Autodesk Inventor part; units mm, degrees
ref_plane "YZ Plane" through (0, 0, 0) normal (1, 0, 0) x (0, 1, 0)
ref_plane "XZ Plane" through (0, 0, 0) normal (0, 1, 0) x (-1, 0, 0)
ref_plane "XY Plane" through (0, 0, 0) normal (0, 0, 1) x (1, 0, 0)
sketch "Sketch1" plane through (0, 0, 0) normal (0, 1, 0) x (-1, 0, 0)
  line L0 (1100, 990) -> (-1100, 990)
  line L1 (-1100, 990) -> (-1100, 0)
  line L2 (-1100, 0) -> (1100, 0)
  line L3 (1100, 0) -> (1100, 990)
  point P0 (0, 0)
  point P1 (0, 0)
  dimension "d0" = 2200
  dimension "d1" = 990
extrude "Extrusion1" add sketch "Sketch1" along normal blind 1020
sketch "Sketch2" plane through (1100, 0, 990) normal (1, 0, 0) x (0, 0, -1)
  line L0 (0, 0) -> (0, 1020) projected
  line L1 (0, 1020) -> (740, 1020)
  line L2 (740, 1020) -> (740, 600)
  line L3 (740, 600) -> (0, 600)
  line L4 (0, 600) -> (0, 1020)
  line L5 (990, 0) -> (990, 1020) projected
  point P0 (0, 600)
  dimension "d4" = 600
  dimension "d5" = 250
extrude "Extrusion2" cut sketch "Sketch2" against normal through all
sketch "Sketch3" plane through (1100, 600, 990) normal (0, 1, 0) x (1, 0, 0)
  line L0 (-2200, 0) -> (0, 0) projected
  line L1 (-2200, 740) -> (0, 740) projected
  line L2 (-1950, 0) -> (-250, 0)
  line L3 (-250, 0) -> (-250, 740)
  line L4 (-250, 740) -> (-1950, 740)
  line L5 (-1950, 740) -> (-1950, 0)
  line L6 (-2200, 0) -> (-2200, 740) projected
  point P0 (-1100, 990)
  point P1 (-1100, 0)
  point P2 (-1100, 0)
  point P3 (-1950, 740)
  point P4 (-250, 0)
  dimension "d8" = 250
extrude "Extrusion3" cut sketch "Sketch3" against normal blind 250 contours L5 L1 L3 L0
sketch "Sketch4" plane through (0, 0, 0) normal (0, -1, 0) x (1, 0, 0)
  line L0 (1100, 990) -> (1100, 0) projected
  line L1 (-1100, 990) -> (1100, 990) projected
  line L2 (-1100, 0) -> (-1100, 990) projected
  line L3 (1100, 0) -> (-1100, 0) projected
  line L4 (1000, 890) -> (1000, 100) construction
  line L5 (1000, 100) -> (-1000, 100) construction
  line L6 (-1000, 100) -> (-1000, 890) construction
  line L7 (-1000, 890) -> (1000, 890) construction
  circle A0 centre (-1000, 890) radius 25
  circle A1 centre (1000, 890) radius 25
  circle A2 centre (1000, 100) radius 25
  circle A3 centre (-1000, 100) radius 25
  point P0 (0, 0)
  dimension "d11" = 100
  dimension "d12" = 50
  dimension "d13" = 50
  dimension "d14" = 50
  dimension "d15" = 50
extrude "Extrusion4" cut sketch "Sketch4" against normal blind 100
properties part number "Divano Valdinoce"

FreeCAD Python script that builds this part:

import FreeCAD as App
import Part
import Sketcher

V = App.Vector

doc = App.newDocument("Part")
body = doc.addObject("PartDesign::Body", "Body")

# Sketch on XZ plane
sketch1 = body.newObject("Sketcher::SketchObject", "Sketch")
sketch1.AttachmentSupport = (doc.getObject("XZ_Plane"), [""])
sketch1.MapMode = "FlatFace"
sketch1.addGeometry(Part.LineSegment(V(-1100, 0, 0), V(-1100, 990, 0)), False)
sketch1.addGeometry(Part.LineSegment(V(-1100, 990, 0), V(1100, 990, 0)), False)
sketch1.addGeometry(Part.LineSegment(V(1100, 990, 0), V(1100, 0, 0)), False)
sketch1.addGeometry(Part.LineSegment(V(1100, 0, 0), V(-1100, 0, 0)), False)
sketch1.addConstraint(Sketcher.Constraint("Coincident", 0, 2, 1, 1))
sketch1.addConstraint(Sketcher.Constraint("Coincident", 1, 2, 2, 1))
sketch1.addConstraint(Sketcher.Constraint("Coincident", 2, 2, 3, 1))
sketch1.addConstraint(Sketcher.Constraint("Coincident", 3, 2, 0, 1))
sketch1.addConstraint(Sketcher.Constraint("Vertical", 0))
sketch1.addConstraint(Sketcher.Constraint("Horizontal", 1))
sketch1.addConstraint(Sketcher.Constraint("Vertical", 2))
sketch1.addConstraint(Sketcher.Constraint("Horizontal", 3))
sketch1.addConstraint(Sketcher.Constraint("Symmetric", 2, 2, 3, 2, -1, 1))
sketch1.addConstraint(Sketcher.Constraint("DistanceX", 1, 1, 1, 2, 2200.0))
sketch1.addConstraint(Sketcher.Constraint("DistanceY", 0, 1, 0, 2, 990.0))
pad1 = body.newObject("PartDesign::Pad", "Pad")
pad1.Profile = sketch1
pad1.Length = 1020
pad1.Reversed = True

# Sketch on YZ plane
sketch2 = body.newObject("Sketcher::SketchObject", "Sketch001")
sketch2.AttachmentSupport = (doc.getObject("YZ_Plane"), [""])
sketch2.MapMode = "FlatFace"
sketch2.AttachmentOffset = App.Placement(V(0, 0, 1100), App.Rotation())
sketch2.addGeometry(Part.LineSegment(V(1020, 990, 0), V(600, 990, 0)), False)
sketch2.addGeometry(Part.LineSegment(V(600, 990, 0), V(600, 250, 0)), False)
sketch2.addGeometry(Part.LineSegment(V(600, 250, 0), V(1020, 250, 0)), False)
sketch2.addGeometry(Part.LineSegment(V(1020, 250, 0), V(1020, 990, 0)), False)
sketch2.addConstraint(Sketcher.Constraint("Coincident", 0, 2, 1, 1))
sketch2.addConstraint(Sketcher.Constraint("Coincident", 1, 2, 2, 1))
sketch2.addConstraint(Sketcher.Constraint("Coincident", 2, 2, 3, 1))
sketch2.addConstraint(Sketcher.Constraint("Coincident", 3, 2, 0, 1))
sketch2.addConstraint(Sketcher.Constraint("Horizontal", 0))
sketch2.addConstraint(Sketcher.Constraint("Vertical", 1))
sketch2.addConstraint(Sketcher.Constraint("Horizontal", 2))
sketch2.addConstraint(Sketcher.Constraint("Vertical", 3))
sketch2.addConstraint(Sketcher.Constraint("DistanceX", -1, 1, 0, 2, 600.0))
sketch2.addConstraint(Sketcher.Constraint("DistanceY", -1, 1, 1, 2, 250.0))
sketch2.addConstraint(Sketcher.Constraint("DistanceX", 0, 2, 0, 1, 420.0))
sketch2.addConstraint(Sketcher.Constraint("DistanceY", 1, 2, 1, 1, 740.0))
pocket1 = body.newObject("PartDesign::Pocket", "Pocket")
pocket1.Profile = sketch2
pocket1.Type = "ThroughAll"

# Sketch on XZ plane
sketch3 = body.newObject("Sketcher::SketchObject", "Sketch002")
sketch3.AttachmentSupport = (doc.getObject("XZ_Plane"), [""])
sketch3.MapMode = "FlatFace"
sketch3.AttachmentOffset = App.Placement(V(0, 0, -600), App.Rotation())
sketch3.addGeometry(Part.LineSegment(V(-850, 250, 0), V(-850, 990, 0)), False)
sketch3.addGeometry(Part.LineSegment(V(-850, 990, 0), V(850, 990, 0)), False)
sketch3.addGeometry(Part.LineSegment(V(850, 990, 0), V(850, 250, 0)), False)
sketch3.addGeometry(Part.LineSegment(V(850, 250, 0), V(-850, 250, 0)), False)
sketch3.addConstraint(Sketcher.Constraint("Coincident", 0, 2, 1, 1))
sketch3.addConstraint(Sketcher.Constraint("Coincident", 1, 2, 2, 1))
sketch3.addConstraint(Sketcher.Constraint("Coincident", 2, 2, 3, 1))
sketch3.addConstraint(Sketcher.Constraint("Coincident", 3, 2, 0, 1))
sketch3.addConstraint(Sketcher.Constraint("Vertical", 0))
sketch3.addConstraint(Sketcher.Constraint("Horizontal", 1))
sketch3.addConstraint(Sketcher.Constraint("Vertical", 2))
sketch3.addConstraint(Sketcher.Constraint("Horizontal", 3))
sketch3.addConstraint(Sketcher.Constraint("DistanceY", -1, 1, 2, 2, 250.0))
sketch3.addConstraint(Sketcher.Constraint("DistanceX", 1, 1, 1, 2, 1700.0))
sketch3.addConstraint(Sketcher.Constraint("DistanceY", 0, 1, 0, 2, 740.0))
sketch3.addConstraint(Sketcher.Constraint("DistanceX", 0, 2, -1, 1, 850.0))
pocket2 = body.newObject("PartDesign::Pocket", "Pocket001")
pocket2.Profile = sketch3
pocket2.Length = 250
pocket2.Reversed = True

# Sketch on XZ plane
sketch4 = body.newObject("Sketcher::SketchObject", "Sketch003")
sketch4.AttachmentSupport = (doc.getObject("XZ_Plane"), [""])
sketch4.MapMode = "FlatFace"
sketch4.addGeometry(Part.LineSegment(V(1100, 0, 0), V(1100, 990, 0)), False)
sketch4.addGeometry(Part.LineSegment(V(1100, 990, 0), V(-1100, 990, 0)), False)
sketch4.addGeometry(Part.LineSegment(V(-1100, 990, 0), V(-1100, 0, 0)), False)
sketch4.addGeometry(Part.LineSegment(V(-1100, 0, 0), V(1100, 0, 0)), False)
sketch4.addGeometry(Part.Circle(V(-1000, 100, 0), V(0, 0, 1), 25), False)
sketch4.addGeometry(Part.Circle(V(1000, 100, 0), V(0, 0, 1), 25), False)
sketch4.addGeometry(Part.Circle(V(-1000, 890, 0), V(0, 0, 1), 25), False)
sketch4.addGeometry(Part.Circle(V(1000, 890, 0), V(0, 0, 1), 25), False)
sketch4.addConstraint(Sketcher.Constraint("Coincident", 0, 2, 1, 1))
sketch4.addConstraint(Sketcher.Constraint("Coincident", 1, 2, 2, 1))
sketch4.addConstraint(Sketcher.Constraint("Coincident", 2, 2, 3, 1))
sketch4.addConstraint(Sketcher.Constraint("Coincident", 3, 2, 0, 1))
sketch4.addConstraint(Sketcher.Constraint("Vertical", 0))
sketch4.addConstraint(Sketcher.Constraint("Horizontal", 1))
sketch4.addConstraint(Sketcher.Constraint("Vertical", 2))
sketch4.addConstraint(Sketcher.Constraint("Horizontal", 3))
sketch4.addConstraint(Sketcher.Constraint("Equal", 4, 5))
sketch4.addConstraint(Sketcher.Constraint("Equal", 5, 6))
sketch4.addConstraint(Sketcher.Constraint("Equal", 6, 7))
sketch4.addConstraint(Sketcher.Constraint("Symmetric", 2, 2, 3, 2, -1, 1))
sketch4.addConstraint(Sketcher.Constraint("Symmetric", 4, 3, 5, 3, -2))
sketch4.addConstraint(Sketcher.Constraint("Symmetric", 6, 3, 7, 3, -2))
sketch4.addConstraint(Sketcher.Constraint("Vertical", 4, 3, 6, 3))
sketch4.addConstraint(Sketcher.Constraint("Diameter", 4, 50.0))
sketch4.addConstraint(Sketcher.Constraint("DistanceY", -1, 1, 4, 3, 100.0))
sketch4.addConstraint(Sketcher.Constraint("DistanceX", 7, 3, 0, 2, 100.0))
sketch4.addConstraint(Sketcher.Constraint("DistanceY", 7, 3, 0, 2, 100.0))
sketch4.addConstraint(Sketcher.Constraint("DistanceX", 1, 2, 1, 1, 2200.0))
sketch4.addConstraint(Sketcher.Constraint("DistanceY", 0, 1, 0, 2, 990.0))
pocket3 = body.newObject("PartDesign::Pocket", "Pocket002")
pocket3.Profile = sketch4
pocket3.Length = 100

doc.recompute()
